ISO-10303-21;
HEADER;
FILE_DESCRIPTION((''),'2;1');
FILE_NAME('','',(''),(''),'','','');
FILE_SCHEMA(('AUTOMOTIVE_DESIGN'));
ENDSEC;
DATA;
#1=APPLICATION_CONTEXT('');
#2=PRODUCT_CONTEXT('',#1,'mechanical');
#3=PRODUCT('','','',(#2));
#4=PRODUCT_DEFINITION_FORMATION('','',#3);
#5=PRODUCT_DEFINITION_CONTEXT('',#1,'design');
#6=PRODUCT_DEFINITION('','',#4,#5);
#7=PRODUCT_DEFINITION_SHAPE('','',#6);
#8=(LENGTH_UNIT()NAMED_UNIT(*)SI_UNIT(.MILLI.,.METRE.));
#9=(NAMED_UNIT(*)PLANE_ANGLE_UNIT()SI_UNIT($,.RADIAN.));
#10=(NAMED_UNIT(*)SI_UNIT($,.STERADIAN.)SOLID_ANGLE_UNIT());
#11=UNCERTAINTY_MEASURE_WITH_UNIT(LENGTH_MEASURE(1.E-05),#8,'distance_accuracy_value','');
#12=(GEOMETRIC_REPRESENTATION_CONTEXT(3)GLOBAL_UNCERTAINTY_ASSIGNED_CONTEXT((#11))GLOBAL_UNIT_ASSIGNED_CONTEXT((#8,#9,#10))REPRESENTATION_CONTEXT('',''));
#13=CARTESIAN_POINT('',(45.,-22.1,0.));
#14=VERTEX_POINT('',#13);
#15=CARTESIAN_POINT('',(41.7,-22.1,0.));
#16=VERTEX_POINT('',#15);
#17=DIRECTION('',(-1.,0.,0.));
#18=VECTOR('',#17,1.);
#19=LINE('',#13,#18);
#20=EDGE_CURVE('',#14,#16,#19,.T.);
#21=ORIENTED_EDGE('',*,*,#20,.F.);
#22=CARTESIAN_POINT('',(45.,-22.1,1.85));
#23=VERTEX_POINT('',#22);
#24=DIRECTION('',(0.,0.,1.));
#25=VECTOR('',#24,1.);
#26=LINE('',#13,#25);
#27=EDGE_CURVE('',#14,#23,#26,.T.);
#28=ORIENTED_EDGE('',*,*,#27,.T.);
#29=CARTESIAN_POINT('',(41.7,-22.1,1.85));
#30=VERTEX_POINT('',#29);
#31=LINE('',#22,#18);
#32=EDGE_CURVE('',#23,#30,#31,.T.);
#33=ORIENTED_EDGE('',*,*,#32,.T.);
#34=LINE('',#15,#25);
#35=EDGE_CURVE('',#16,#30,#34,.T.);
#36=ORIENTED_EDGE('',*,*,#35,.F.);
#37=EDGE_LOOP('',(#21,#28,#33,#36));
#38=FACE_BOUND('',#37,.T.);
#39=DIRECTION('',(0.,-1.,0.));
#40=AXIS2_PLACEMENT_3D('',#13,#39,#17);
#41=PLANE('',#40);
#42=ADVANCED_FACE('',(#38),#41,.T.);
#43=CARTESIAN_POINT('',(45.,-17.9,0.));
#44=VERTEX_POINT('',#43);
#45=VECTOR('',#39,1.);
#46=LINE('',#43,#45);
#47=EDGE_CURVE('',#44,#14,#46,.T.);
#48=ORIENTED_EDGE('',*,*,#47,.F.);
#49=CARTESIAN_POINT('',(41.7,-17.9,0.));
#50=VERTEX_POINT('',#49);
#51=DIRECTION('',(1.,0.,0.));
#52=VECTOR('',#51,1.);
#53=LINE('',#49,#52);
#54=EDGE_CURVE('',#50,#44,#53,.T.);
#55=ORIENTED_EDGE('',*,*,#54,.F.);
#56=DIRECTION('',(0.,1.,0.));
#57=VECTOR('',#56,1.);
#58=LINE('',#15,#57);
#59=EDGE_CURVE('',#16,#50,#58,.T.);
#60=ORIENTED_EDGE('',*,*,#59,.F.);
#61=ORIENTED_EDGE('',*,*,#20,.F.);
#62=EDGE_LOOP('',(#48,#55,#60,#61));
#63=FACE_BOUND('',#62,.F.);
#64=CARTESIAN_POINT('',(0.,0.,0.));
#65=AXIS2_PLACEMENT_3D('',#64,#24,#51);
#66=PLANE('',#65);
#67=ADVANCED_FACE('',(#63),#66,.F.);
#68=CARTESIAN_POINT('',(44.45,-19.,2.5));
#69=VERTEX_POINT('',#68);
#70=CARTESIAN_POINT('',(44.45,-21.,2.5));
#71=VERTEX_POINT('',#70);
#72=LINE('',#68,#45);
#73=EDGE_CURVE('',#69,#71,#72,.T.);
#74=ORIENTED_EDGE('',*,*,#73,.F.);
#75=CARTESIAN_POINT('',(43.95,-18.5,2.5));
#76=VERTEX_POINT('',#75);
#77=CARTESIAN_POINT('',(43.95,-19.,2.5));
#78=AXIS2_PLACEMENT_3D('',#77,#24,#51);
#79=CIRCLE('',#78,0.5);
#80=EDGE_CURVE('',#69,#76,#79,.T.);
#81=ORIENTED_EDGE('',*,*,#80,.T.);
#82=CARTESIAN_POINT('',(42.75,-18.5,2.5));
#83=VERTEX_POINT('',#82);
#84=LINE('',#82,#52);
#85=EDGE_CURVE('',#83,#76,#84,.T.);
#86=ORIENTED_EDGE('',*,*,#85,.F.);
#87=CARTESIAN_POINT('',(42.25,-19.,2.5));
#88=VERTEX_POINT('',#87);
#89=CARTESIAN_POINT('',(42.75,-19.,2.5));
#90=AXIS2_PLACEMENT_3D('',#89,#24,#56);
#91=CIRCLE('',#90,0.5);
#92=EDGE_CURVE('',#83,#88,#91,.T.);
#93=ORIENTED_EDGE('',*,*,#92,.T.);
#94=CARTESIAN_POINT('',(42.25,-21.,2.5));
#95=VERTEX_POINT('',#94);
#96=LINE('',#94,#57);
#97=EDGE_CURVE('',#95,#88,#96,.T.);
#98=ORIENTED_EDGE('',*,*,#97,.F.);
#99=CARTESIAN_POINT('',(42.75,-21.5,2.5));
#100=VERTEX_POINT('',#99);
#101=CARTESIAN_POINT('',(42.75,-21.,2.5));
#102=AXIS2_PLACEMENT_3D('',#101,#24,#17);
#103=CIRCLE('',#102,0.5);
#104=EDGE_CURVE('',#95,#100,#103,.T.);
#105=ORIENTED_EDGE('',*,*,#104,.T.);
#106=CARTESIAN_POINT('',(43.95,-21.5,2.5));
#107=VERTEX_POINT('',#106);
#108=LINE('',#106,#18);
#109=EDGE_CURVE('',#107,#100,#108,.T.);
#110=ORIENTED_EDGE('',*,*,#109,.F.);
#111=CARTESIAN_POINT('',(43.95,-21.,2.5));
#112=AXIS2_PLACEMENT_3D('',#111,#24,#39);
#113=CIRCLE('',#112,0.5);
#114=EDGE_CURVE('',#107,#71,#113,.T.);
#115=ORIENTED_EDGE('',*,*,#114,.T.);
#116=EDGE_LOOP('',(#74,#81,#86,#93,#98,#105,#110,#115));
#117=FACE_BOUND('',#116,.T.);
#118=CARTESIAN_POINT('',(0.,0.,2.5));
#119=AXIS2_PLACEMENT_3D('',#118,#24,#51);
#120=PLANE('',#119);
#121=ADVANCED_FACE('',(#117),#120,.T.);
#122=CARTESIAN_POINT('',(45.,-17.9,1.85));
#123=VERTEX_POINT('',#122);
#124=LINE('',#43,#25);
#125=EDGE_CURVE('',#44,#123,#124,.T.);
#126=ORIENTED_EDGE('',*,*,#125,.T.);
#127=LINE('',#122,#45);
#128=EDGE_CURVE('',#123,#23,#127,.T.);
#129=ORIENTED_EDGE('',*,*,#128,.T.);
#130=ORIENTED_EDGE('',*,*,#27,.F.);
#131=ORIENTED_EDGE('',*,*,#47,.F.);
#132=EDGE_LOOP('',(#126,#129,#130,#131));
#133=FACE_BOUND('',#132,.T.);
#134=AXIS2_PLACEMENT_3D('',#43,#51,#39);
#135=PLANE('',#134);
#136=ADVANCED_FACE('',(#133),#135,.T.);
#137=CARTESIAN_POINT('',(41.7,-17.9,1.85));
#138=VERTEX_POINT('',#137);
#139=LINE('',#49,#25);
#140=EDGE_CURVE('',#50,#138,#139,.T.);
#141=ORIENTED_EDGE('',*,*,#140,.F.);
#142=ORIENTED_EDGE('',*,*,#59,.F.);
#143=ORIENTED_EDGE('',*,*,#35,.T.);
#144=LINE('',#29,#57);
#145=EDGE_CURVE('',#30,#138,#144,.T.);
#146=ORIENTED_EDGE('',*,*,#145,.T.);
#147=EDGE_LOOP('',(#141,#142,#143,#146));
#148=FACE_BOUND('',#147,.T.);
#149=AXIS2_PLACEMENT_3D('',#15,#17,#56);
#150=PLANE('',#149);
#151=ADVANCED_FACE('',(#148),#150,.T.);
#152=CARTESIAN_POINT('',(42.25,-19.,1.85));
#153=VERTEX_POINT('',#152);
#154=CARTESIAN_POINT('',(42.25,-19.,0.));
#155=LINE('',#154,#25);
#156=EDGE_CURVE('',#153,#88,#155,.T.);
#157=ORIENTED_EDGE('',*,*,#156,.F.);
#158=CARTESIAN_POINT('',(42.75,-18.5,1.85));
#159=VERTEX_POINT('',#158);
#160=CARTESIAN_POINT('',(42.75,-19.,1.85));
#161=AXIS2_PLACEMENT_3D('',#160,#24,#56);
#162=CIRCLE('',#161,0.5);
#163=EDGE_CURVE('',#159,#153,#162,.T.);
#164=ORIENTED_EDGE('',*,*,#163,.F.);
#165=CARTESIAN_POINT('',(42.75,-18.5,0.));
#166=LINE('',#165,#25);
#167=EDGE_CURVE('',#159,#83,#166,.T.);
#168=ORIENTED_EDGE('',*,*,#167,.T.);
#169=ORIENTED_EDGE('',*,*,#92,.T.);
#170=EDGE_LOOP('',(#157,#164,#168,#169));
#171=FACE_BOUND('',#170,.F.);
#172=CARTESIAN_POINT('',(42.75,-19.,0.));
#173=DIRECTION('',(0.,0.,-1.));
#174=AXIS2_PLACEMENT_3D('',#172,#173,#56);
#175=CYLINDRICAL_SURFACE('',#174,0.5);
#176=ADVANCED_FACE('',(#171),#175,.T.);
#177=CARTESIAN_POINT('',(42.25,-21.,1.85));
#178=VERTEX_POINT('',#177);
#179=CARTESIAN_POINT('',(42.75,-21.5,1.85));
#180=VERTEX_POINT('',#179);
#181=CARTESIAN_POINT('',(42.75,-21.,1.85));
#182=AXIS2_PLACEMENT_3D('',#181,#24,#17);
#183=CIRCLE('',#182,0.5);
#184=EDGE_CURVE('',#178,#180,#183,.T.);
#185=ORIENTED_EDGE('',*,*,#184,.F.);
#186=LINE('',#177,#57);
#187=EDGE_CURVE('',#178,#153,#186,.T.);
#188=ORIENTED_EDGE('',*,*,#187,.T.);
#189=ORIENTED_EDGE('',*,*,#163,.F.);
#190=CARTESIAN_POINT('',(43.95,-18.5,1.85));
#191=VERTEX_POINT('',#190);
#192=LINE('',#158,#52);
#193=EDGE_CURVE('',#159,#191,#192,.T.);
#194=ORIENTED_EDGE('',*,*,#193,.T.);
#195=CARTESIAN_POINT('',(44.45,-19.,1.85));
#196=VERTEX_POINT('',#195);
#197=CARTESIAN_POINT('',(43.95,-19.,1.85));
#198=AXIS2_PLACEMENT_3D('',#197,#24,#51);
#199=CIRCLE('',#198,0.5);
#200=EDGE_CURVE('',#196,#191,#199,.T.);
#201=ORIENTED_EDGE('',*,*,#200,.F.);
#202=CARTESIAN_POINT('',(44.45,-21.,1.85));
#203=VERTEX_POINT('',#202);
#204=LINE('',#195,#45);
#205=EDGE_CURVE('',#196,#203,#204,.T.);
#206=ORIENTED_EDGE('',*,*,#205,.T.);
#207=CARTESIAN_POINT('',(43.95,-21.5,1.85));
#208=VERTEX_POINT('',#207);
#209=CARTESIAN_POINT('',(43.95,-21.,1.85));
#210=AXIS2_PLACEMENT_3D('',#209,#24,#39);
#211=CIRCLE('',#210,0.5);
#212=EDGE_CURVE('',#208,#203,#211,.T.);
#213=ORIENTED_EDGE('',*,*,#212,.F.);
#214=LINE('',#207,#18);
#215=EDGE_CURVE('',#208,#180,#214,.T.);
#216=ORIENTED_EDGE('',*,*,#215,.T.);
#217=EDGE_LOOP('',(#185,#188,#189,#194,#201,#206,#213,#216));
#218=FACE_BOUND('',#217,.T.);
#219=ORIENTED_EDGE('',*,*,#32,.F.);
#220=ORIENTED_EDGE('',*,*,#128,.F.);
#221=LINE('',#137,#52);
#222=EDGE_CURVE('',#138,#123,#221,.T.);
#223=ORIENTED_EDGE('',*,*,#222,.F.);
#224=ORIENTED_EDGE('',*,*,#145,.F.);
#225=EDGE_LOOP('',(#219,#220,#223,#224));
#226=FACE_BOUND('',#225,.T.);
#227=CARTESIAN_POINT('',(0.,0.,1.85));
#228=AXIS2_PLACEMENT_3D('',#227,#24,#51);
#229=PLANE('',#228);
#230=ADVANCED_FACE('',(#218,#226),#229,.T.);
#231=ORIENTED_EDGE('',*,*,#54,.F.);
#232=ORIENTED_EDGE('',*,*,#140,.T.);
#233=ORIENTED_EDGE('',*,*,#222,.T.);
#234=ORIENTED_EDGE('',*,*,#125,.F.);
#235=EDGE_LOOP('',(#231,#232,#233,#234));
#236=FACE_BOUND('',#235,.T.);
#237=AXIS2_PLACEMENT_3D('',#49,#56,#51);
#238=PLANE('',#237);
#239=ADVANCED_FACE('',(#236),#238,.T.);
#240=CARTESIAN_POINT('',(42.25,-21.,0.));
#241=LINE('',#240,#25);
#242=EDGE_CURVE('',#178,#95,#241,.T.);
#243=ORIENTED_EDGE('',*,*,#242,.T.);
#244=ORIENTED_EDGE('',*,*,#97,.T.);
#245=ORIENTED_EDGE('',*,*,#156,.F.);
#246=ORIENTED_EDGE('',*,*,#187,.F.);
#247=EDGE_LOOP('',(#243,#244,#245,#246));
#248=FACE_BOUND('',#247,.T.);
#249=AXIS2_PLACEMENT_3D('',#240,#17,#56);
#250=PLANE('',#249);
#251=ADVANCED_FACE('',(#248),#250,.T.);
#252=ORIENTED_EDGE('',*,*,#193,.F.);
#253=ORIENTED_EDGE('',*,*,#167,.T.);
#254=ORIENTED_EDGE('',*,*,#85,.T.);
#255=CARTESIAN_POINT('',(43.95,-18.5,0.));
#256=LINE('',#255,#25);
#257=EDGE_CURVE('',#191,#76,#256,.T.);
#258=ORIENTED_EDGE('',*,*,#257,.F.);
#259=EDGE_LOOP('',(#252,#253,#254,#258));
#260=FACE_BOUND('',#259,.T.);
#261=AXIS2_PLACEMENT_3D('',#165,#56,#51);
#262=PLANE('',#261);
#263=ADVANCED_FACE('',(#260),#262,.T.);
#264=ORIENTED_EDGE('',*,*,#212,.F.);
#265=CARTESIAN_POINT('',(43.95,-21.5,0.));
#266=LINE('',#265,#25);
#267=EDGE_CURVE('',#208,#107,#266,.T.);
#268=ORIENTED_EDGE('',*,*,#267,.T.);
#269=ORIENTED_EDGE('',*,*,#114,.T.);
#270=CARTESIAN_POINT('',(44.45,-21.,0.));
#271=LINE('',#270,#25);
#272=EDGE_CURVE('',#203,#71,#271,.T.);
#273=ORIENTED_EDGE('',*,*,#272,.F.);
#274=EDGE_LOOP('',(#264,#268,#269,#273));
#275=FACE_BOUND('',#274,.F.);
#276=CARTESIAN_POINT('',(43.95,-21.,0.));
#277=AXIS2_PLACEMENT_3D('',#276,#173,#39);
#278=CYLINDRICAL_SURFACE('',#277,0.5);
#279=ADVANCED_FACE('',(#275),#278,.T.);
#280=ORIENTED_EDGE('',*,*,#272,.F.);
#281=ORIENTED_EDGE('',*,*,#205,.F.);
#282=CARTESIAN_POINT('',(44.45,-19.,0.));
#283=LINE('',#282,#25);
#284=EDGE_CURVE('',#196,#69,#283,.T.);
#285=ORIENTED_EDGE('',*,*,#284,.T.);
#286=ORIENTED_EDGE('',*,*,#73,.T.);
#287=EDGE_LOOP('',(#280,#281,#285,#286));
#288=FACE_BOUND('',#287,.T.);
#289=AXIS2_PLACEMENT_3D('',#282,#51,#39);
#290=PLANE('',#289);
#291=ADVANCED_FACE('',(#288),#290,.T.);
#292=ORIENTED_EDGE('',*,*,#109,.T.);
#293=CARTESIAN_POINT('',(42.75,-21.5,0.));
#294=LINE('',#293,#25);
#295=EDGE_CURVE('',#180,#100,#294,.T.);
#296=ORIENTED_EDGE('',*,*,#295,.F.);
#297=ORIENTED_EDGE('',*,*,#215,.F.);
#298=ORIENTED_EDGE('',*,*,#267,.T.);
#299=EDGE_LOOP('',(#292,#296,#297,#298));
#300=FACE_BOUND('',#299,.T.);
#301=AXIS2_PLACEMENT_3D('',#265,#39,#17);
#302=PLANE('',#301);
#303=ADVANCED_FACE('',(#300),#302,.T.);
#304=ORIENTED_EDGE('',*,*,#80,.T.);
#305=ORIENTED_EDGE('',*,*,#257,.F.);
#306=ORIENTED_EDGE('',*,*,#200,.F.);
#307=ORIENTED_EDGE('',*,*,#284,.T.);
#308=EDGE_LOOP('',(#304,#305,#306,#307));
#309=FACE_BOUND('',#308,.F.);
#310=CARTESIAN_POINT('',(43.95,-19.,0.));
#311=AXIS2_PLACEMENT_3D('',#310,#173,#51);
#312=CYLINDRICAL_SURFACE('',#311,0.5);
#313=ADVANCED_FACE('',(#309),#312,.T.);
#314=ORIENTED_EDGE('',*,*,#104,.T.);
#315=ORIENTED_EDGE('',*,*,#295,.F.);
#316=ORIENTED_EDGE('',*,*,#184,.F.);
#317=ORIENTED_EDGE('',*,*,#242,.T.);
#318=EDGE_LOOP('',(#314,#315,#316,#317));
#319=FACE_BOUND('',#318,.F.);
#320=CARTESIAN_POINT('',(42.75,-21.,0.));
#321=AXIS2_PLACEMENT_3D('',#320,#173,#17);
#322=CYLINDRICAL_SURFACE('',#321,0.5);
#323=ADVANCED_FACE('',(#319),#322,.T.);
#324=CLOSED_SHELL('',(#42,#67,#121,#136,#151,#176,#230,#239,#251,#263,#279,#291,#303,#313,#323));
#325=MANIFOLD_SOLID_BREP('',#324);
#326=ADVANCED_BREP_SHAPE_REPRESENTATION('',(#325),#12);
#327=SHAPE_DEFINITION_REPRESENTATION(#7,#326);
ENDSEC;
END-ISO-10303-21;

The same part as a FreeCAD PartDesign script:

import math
import FreeCAD as App
import Part
import Sketcher
from FreeCAD import Vector

doc = App.newDocument("Part")
body = doc.addObject("PartDesign::Body", "Body")

sketch1 = body.newObject("Sketcher::SketchObject", "Sketch")
sketch1.AttachmentSupport = (doc.getObject("XY_Plane"), [""])
sketch1.MapMode = "FlatFace"
sketch1.addGeometry(Part.LineSegment(Vector(45, -17.9, 0), Vector(41.7, -17.9, 0)), False)
sketch1.addGeometry(Part.LineSegment(Vector(41.7, -17.9, 0), Vector(41.7, -22.1, 0)), False)
sketch1.addGeometry(Part.LineSegment(Vector(41.7, -22.1, 0), Vector(45, -22.1, 0)), False)
sketch1.addGeometry(Part.LineSegment(Vector(45, -22.1, 0), Vector(45, -17.9, 0)), False)
sketch1.addGeometry(Part.ArcOfCircle(Part.Circle(Vector(42.75, -19, 0), Vector(0, 0, 1), 0.5), math.radians(90), math.radians(180)), False)
sketch1.addGeometry(Part.LineSegment(Vector(42.75, -18.5, 0), Vector(43.95, -18.5, 0)), False)
sketch1.addGeometry(Part.ArcOfCircle(Part.Circle(Vector(43.95, -19, 0), Vector(0, 0, 1), 0.5), math.radians(0), math.radians(90)), False)
sketch1.addGeometry(Part.LineSegment(Vector(44.45, -19, 0), Vector(44.45, -21, 0)), False)
sketch1.addGeometry(Part.ArcOfCircle(Part.Circle(Vector(43.95, -21, 0), Vector(0, 0, 1), 0.5), math.radians(-90), math.radians(0)), False)
sketch1.addGeometry(Part.LineSegment(Vector(43.95, -21.5, 0), Vector(42.75, -21.5, 0)), False)
sketch1.addGeometry(Part.ArcOfCircle(Part.Circle(Vector(42.75, -21, 0), Vector(0, 0, 1), 0.5), math.radians(180), math.radians(270)), False)
sketch1.addGeometry(Part.LineSegment(Vector(42.25, -21, 0), Vector(42.25, -19, 0)), False)
sketch1.addConstraint(Sketcher.Constraint("Coincident", 0, 2, 1, 1))
sketch1.addConstraint(Sketcher.Constraint("Coincident", 1, 2, 2, 1))
sketch1.addConstraint(Sketcher.Constraint("Coincident", 2, 2, 3, 1))
sketch1.addConstraint(Sketcher.Constraint("Coincident", 3, 2, 0, 1))
sketch1.addConstraint(Sketcher.Constraint("Tangent", 4, 1, 5, 1))
sketch1.addConstraint(Sketcher.Constraint("Tangent", 5, 2, 6, 2))
sketch1.addConstraint(Sketcher.Constraint("Tangent", 6, 1, 7, 1))
sketch1.addConstraint(Sketcher.Constraint("Tangent", 7, 2, 8, 2))
sketch1.addConstraint(Sketcher.Constraint("Tangent", 8, 1, 9, 1))
sketch1.addConstraint(Sketcher.Constraint("Tangent", 9, 2, 10, 2))
sketch1.addConstraint(Sketcher.Constraint("Tangent", 10, 1, 11, 1))
sketch1.addConstraint(Sketcher.Constraint("Tangent", 11, 2, 4, 2))
sketch1.addConstraint(Sketcher.Constraint("Horizontal", 0))
sketch1.addConstraint(Sketcher.Constraint("Vertical", 1))
sketch1.addConstraint(Sketcher.Constraint("Horizontal", 2))
sketch1.addConstraint(Sketcher.Constraint("Vertical", 3))
sketch1.addConstraint(Sketcher.Constraint("Horizontal", 5))
sketch1.addConstraint(Sketcher.Constraint("Vertical", 7))
sketch1.addConstraint(Sketcher.Constraint("Horizontal", 9))
sketch1.addConstraint(Sketcher.Constraint("Vertical", 11))
sketch1.addConstraint(Sketcher.Constraint("Equal", 4, 6))
sketch1.addConstraint(Sketcher.Constraint("Equal", 6, 8))
sketch1.addConstraint(Sketcher.Constraint("Equal", 8, 10))
sketch1.addConstraint(Sketcher.Constraint("Radius", 4, 0.5))
sketch1.addConstraint(Sketcher.Constraint("DistanceX", 0, 2, 0, 1, 3.3))
sketch1.addConstraint(Sketcher.Constraint("DistanceY", 1, 2, 1, 1, 4.2))
sketch1.addConstraint(Sketcher.Constraint("DistanceY", 7, 2, 7, 1, 2.0))
sketch1.addConstraint(Sketcher.Constraint("DistanceX", 5, 1, 5, 2, 1.2))
sketch1.addConstraint(Sketcher.Constraint("DistanceY", 4, 3, -1, 1, 19.0))
sketch1.addConstraint(Sketcher.Constraint("DistanceX", -1, 1, 2, 2, 45.0))
sketch1.addConstraint(Sketcher.Constraint("DistanceY", 0, 2, -1, 1, 17.9))
sketch1.addConstraint(Sketcher.Constraint("DistanceX", -1, 1, 4, 3, 42.75))
pad1 = body.newObject("PartDesign::Pad", "Pad")
pad1.Profile = sketch1
pad1.Length = 1.85

sketch2 = body.newObject("Sketcher::SketchObject", "Sketch001")
sketch2.AttachmentSupport = (doc.getObject("XY_Plane"), [""])
sketch2.MapMode = "FlatFace"
sketch2.addGeometry(Part.LineSegment(Vector(43.95, -18.5, 0), Vector(42.75, -18.5, 0)), False)
sketch2.addGeometry(Part.ArcOfCircle(Part.Circle(Vector(42.75, -19, 0), Vector(0, 0, 1), 0.5), math.radians(90), math.radians(180)), False)
sketch2.addGeometry(Part.LineSegment(Vector(42.25, -19, 0), Vector(42.25, -21, 0)), False)
sketch2.addGeometry(Part.ArcOfCircle(Part.Circle(Vector(42.75, -21, 0), Vector(0, 0, 1), 0.5), math.radians(180), math.radians(270)), False)
sketch2.addGeometry(Part.LineSegment(Vector(42.75, -21.5, 0), Vector(43.95, -21.5, 0)), False)
sketch2.addGeometry(Part.ArcOfCircle(Part.Circle(Vector(43.95, -21, 0), Vector(0, 0, 1), 0.5), math.radians(-90), math.radians(0)), False)
sketch2.addGeometry(Part.LineSegment(Vector(44.45, -21, 0), Vector(44.45, -19, 0)), False)
sketch2.addGeometry(Part.ArcOfCircle(Part.Circle(Vector(43.95, -19, 0), Vector(0, 0, 1), 0.5), math.radians(0), math.radians(90)), False)
sketch2.addConstraint(Sketcher.Constraint("Tangent", 0, 2, 1, 1))
sketch2.addConstraint(Sketcher.Constraint("Tangent", 1, 2, 2, 1))
sketch2.addConstraint(Sketcher.Constraint("Tangent", 2, 2, 3, 1))
sketch2.addConstraint(Sketcher.Constraint("Tangent", 3, 2, 4, 1))
sketch2.addConstraint(Sketcher.Constraint("Tangent", 4, 2, 5, 1))
sketch2.addConstraint(Sketcher.Constraint("Tangent", 5, 2, 6, 1))
sketch2.addConstraint(Sketcher.Constraint("Tangent", 6, 2, 7, 1))
sketch2.addConstraint(Sketcher.Constraint("Tangent", 7, 2, 0, 1))
sketch2.addConstraint(Sketcher.Constraint("Horizontal", 0))
sketch2.addConstraint(Sketcher.Constraint("Vertical", 2))
sketch2.addConstraint(Sketcher.Constraint("Horizontal", 4))
sketch2.addConstraint(Sketcher.Constraint("Vertical", 6))
sketch2.addConstraint(Sketcher.Constraint("Equal", 1, 3))
sketch2.addConstraint(Sketcher.Constraint("Equal", 3, 5))
sketch2.addConstraint(Sketcher.Constraint("Equal", 5, 7))
sketch2.addConstraint(Sketcher.Constraint("Radius", 1, 0.5))
sketch2.addConstraint(Sketcher.Constraint("DistanceY", 2, 2, 2, 1, 2.0))
sketch2.addConstraint(Sketcher.Constraint("DistanceX", 0, 2, 0, 1, 1.2))
sketch2.addConstraint(Sketcher.Constraint("DistanceY", 1, 3, -1, 1, 19.0))
sketch2.addConstraint(Sketcher.Constraint("DistanceX", -1, 1, 1, 3, 42.75))
pad2 = body.newObject("PartDesign::Pad", "Pad001")
pad2.Profile = sketch2
pad2.Length = 2.5

doc.recompute()
